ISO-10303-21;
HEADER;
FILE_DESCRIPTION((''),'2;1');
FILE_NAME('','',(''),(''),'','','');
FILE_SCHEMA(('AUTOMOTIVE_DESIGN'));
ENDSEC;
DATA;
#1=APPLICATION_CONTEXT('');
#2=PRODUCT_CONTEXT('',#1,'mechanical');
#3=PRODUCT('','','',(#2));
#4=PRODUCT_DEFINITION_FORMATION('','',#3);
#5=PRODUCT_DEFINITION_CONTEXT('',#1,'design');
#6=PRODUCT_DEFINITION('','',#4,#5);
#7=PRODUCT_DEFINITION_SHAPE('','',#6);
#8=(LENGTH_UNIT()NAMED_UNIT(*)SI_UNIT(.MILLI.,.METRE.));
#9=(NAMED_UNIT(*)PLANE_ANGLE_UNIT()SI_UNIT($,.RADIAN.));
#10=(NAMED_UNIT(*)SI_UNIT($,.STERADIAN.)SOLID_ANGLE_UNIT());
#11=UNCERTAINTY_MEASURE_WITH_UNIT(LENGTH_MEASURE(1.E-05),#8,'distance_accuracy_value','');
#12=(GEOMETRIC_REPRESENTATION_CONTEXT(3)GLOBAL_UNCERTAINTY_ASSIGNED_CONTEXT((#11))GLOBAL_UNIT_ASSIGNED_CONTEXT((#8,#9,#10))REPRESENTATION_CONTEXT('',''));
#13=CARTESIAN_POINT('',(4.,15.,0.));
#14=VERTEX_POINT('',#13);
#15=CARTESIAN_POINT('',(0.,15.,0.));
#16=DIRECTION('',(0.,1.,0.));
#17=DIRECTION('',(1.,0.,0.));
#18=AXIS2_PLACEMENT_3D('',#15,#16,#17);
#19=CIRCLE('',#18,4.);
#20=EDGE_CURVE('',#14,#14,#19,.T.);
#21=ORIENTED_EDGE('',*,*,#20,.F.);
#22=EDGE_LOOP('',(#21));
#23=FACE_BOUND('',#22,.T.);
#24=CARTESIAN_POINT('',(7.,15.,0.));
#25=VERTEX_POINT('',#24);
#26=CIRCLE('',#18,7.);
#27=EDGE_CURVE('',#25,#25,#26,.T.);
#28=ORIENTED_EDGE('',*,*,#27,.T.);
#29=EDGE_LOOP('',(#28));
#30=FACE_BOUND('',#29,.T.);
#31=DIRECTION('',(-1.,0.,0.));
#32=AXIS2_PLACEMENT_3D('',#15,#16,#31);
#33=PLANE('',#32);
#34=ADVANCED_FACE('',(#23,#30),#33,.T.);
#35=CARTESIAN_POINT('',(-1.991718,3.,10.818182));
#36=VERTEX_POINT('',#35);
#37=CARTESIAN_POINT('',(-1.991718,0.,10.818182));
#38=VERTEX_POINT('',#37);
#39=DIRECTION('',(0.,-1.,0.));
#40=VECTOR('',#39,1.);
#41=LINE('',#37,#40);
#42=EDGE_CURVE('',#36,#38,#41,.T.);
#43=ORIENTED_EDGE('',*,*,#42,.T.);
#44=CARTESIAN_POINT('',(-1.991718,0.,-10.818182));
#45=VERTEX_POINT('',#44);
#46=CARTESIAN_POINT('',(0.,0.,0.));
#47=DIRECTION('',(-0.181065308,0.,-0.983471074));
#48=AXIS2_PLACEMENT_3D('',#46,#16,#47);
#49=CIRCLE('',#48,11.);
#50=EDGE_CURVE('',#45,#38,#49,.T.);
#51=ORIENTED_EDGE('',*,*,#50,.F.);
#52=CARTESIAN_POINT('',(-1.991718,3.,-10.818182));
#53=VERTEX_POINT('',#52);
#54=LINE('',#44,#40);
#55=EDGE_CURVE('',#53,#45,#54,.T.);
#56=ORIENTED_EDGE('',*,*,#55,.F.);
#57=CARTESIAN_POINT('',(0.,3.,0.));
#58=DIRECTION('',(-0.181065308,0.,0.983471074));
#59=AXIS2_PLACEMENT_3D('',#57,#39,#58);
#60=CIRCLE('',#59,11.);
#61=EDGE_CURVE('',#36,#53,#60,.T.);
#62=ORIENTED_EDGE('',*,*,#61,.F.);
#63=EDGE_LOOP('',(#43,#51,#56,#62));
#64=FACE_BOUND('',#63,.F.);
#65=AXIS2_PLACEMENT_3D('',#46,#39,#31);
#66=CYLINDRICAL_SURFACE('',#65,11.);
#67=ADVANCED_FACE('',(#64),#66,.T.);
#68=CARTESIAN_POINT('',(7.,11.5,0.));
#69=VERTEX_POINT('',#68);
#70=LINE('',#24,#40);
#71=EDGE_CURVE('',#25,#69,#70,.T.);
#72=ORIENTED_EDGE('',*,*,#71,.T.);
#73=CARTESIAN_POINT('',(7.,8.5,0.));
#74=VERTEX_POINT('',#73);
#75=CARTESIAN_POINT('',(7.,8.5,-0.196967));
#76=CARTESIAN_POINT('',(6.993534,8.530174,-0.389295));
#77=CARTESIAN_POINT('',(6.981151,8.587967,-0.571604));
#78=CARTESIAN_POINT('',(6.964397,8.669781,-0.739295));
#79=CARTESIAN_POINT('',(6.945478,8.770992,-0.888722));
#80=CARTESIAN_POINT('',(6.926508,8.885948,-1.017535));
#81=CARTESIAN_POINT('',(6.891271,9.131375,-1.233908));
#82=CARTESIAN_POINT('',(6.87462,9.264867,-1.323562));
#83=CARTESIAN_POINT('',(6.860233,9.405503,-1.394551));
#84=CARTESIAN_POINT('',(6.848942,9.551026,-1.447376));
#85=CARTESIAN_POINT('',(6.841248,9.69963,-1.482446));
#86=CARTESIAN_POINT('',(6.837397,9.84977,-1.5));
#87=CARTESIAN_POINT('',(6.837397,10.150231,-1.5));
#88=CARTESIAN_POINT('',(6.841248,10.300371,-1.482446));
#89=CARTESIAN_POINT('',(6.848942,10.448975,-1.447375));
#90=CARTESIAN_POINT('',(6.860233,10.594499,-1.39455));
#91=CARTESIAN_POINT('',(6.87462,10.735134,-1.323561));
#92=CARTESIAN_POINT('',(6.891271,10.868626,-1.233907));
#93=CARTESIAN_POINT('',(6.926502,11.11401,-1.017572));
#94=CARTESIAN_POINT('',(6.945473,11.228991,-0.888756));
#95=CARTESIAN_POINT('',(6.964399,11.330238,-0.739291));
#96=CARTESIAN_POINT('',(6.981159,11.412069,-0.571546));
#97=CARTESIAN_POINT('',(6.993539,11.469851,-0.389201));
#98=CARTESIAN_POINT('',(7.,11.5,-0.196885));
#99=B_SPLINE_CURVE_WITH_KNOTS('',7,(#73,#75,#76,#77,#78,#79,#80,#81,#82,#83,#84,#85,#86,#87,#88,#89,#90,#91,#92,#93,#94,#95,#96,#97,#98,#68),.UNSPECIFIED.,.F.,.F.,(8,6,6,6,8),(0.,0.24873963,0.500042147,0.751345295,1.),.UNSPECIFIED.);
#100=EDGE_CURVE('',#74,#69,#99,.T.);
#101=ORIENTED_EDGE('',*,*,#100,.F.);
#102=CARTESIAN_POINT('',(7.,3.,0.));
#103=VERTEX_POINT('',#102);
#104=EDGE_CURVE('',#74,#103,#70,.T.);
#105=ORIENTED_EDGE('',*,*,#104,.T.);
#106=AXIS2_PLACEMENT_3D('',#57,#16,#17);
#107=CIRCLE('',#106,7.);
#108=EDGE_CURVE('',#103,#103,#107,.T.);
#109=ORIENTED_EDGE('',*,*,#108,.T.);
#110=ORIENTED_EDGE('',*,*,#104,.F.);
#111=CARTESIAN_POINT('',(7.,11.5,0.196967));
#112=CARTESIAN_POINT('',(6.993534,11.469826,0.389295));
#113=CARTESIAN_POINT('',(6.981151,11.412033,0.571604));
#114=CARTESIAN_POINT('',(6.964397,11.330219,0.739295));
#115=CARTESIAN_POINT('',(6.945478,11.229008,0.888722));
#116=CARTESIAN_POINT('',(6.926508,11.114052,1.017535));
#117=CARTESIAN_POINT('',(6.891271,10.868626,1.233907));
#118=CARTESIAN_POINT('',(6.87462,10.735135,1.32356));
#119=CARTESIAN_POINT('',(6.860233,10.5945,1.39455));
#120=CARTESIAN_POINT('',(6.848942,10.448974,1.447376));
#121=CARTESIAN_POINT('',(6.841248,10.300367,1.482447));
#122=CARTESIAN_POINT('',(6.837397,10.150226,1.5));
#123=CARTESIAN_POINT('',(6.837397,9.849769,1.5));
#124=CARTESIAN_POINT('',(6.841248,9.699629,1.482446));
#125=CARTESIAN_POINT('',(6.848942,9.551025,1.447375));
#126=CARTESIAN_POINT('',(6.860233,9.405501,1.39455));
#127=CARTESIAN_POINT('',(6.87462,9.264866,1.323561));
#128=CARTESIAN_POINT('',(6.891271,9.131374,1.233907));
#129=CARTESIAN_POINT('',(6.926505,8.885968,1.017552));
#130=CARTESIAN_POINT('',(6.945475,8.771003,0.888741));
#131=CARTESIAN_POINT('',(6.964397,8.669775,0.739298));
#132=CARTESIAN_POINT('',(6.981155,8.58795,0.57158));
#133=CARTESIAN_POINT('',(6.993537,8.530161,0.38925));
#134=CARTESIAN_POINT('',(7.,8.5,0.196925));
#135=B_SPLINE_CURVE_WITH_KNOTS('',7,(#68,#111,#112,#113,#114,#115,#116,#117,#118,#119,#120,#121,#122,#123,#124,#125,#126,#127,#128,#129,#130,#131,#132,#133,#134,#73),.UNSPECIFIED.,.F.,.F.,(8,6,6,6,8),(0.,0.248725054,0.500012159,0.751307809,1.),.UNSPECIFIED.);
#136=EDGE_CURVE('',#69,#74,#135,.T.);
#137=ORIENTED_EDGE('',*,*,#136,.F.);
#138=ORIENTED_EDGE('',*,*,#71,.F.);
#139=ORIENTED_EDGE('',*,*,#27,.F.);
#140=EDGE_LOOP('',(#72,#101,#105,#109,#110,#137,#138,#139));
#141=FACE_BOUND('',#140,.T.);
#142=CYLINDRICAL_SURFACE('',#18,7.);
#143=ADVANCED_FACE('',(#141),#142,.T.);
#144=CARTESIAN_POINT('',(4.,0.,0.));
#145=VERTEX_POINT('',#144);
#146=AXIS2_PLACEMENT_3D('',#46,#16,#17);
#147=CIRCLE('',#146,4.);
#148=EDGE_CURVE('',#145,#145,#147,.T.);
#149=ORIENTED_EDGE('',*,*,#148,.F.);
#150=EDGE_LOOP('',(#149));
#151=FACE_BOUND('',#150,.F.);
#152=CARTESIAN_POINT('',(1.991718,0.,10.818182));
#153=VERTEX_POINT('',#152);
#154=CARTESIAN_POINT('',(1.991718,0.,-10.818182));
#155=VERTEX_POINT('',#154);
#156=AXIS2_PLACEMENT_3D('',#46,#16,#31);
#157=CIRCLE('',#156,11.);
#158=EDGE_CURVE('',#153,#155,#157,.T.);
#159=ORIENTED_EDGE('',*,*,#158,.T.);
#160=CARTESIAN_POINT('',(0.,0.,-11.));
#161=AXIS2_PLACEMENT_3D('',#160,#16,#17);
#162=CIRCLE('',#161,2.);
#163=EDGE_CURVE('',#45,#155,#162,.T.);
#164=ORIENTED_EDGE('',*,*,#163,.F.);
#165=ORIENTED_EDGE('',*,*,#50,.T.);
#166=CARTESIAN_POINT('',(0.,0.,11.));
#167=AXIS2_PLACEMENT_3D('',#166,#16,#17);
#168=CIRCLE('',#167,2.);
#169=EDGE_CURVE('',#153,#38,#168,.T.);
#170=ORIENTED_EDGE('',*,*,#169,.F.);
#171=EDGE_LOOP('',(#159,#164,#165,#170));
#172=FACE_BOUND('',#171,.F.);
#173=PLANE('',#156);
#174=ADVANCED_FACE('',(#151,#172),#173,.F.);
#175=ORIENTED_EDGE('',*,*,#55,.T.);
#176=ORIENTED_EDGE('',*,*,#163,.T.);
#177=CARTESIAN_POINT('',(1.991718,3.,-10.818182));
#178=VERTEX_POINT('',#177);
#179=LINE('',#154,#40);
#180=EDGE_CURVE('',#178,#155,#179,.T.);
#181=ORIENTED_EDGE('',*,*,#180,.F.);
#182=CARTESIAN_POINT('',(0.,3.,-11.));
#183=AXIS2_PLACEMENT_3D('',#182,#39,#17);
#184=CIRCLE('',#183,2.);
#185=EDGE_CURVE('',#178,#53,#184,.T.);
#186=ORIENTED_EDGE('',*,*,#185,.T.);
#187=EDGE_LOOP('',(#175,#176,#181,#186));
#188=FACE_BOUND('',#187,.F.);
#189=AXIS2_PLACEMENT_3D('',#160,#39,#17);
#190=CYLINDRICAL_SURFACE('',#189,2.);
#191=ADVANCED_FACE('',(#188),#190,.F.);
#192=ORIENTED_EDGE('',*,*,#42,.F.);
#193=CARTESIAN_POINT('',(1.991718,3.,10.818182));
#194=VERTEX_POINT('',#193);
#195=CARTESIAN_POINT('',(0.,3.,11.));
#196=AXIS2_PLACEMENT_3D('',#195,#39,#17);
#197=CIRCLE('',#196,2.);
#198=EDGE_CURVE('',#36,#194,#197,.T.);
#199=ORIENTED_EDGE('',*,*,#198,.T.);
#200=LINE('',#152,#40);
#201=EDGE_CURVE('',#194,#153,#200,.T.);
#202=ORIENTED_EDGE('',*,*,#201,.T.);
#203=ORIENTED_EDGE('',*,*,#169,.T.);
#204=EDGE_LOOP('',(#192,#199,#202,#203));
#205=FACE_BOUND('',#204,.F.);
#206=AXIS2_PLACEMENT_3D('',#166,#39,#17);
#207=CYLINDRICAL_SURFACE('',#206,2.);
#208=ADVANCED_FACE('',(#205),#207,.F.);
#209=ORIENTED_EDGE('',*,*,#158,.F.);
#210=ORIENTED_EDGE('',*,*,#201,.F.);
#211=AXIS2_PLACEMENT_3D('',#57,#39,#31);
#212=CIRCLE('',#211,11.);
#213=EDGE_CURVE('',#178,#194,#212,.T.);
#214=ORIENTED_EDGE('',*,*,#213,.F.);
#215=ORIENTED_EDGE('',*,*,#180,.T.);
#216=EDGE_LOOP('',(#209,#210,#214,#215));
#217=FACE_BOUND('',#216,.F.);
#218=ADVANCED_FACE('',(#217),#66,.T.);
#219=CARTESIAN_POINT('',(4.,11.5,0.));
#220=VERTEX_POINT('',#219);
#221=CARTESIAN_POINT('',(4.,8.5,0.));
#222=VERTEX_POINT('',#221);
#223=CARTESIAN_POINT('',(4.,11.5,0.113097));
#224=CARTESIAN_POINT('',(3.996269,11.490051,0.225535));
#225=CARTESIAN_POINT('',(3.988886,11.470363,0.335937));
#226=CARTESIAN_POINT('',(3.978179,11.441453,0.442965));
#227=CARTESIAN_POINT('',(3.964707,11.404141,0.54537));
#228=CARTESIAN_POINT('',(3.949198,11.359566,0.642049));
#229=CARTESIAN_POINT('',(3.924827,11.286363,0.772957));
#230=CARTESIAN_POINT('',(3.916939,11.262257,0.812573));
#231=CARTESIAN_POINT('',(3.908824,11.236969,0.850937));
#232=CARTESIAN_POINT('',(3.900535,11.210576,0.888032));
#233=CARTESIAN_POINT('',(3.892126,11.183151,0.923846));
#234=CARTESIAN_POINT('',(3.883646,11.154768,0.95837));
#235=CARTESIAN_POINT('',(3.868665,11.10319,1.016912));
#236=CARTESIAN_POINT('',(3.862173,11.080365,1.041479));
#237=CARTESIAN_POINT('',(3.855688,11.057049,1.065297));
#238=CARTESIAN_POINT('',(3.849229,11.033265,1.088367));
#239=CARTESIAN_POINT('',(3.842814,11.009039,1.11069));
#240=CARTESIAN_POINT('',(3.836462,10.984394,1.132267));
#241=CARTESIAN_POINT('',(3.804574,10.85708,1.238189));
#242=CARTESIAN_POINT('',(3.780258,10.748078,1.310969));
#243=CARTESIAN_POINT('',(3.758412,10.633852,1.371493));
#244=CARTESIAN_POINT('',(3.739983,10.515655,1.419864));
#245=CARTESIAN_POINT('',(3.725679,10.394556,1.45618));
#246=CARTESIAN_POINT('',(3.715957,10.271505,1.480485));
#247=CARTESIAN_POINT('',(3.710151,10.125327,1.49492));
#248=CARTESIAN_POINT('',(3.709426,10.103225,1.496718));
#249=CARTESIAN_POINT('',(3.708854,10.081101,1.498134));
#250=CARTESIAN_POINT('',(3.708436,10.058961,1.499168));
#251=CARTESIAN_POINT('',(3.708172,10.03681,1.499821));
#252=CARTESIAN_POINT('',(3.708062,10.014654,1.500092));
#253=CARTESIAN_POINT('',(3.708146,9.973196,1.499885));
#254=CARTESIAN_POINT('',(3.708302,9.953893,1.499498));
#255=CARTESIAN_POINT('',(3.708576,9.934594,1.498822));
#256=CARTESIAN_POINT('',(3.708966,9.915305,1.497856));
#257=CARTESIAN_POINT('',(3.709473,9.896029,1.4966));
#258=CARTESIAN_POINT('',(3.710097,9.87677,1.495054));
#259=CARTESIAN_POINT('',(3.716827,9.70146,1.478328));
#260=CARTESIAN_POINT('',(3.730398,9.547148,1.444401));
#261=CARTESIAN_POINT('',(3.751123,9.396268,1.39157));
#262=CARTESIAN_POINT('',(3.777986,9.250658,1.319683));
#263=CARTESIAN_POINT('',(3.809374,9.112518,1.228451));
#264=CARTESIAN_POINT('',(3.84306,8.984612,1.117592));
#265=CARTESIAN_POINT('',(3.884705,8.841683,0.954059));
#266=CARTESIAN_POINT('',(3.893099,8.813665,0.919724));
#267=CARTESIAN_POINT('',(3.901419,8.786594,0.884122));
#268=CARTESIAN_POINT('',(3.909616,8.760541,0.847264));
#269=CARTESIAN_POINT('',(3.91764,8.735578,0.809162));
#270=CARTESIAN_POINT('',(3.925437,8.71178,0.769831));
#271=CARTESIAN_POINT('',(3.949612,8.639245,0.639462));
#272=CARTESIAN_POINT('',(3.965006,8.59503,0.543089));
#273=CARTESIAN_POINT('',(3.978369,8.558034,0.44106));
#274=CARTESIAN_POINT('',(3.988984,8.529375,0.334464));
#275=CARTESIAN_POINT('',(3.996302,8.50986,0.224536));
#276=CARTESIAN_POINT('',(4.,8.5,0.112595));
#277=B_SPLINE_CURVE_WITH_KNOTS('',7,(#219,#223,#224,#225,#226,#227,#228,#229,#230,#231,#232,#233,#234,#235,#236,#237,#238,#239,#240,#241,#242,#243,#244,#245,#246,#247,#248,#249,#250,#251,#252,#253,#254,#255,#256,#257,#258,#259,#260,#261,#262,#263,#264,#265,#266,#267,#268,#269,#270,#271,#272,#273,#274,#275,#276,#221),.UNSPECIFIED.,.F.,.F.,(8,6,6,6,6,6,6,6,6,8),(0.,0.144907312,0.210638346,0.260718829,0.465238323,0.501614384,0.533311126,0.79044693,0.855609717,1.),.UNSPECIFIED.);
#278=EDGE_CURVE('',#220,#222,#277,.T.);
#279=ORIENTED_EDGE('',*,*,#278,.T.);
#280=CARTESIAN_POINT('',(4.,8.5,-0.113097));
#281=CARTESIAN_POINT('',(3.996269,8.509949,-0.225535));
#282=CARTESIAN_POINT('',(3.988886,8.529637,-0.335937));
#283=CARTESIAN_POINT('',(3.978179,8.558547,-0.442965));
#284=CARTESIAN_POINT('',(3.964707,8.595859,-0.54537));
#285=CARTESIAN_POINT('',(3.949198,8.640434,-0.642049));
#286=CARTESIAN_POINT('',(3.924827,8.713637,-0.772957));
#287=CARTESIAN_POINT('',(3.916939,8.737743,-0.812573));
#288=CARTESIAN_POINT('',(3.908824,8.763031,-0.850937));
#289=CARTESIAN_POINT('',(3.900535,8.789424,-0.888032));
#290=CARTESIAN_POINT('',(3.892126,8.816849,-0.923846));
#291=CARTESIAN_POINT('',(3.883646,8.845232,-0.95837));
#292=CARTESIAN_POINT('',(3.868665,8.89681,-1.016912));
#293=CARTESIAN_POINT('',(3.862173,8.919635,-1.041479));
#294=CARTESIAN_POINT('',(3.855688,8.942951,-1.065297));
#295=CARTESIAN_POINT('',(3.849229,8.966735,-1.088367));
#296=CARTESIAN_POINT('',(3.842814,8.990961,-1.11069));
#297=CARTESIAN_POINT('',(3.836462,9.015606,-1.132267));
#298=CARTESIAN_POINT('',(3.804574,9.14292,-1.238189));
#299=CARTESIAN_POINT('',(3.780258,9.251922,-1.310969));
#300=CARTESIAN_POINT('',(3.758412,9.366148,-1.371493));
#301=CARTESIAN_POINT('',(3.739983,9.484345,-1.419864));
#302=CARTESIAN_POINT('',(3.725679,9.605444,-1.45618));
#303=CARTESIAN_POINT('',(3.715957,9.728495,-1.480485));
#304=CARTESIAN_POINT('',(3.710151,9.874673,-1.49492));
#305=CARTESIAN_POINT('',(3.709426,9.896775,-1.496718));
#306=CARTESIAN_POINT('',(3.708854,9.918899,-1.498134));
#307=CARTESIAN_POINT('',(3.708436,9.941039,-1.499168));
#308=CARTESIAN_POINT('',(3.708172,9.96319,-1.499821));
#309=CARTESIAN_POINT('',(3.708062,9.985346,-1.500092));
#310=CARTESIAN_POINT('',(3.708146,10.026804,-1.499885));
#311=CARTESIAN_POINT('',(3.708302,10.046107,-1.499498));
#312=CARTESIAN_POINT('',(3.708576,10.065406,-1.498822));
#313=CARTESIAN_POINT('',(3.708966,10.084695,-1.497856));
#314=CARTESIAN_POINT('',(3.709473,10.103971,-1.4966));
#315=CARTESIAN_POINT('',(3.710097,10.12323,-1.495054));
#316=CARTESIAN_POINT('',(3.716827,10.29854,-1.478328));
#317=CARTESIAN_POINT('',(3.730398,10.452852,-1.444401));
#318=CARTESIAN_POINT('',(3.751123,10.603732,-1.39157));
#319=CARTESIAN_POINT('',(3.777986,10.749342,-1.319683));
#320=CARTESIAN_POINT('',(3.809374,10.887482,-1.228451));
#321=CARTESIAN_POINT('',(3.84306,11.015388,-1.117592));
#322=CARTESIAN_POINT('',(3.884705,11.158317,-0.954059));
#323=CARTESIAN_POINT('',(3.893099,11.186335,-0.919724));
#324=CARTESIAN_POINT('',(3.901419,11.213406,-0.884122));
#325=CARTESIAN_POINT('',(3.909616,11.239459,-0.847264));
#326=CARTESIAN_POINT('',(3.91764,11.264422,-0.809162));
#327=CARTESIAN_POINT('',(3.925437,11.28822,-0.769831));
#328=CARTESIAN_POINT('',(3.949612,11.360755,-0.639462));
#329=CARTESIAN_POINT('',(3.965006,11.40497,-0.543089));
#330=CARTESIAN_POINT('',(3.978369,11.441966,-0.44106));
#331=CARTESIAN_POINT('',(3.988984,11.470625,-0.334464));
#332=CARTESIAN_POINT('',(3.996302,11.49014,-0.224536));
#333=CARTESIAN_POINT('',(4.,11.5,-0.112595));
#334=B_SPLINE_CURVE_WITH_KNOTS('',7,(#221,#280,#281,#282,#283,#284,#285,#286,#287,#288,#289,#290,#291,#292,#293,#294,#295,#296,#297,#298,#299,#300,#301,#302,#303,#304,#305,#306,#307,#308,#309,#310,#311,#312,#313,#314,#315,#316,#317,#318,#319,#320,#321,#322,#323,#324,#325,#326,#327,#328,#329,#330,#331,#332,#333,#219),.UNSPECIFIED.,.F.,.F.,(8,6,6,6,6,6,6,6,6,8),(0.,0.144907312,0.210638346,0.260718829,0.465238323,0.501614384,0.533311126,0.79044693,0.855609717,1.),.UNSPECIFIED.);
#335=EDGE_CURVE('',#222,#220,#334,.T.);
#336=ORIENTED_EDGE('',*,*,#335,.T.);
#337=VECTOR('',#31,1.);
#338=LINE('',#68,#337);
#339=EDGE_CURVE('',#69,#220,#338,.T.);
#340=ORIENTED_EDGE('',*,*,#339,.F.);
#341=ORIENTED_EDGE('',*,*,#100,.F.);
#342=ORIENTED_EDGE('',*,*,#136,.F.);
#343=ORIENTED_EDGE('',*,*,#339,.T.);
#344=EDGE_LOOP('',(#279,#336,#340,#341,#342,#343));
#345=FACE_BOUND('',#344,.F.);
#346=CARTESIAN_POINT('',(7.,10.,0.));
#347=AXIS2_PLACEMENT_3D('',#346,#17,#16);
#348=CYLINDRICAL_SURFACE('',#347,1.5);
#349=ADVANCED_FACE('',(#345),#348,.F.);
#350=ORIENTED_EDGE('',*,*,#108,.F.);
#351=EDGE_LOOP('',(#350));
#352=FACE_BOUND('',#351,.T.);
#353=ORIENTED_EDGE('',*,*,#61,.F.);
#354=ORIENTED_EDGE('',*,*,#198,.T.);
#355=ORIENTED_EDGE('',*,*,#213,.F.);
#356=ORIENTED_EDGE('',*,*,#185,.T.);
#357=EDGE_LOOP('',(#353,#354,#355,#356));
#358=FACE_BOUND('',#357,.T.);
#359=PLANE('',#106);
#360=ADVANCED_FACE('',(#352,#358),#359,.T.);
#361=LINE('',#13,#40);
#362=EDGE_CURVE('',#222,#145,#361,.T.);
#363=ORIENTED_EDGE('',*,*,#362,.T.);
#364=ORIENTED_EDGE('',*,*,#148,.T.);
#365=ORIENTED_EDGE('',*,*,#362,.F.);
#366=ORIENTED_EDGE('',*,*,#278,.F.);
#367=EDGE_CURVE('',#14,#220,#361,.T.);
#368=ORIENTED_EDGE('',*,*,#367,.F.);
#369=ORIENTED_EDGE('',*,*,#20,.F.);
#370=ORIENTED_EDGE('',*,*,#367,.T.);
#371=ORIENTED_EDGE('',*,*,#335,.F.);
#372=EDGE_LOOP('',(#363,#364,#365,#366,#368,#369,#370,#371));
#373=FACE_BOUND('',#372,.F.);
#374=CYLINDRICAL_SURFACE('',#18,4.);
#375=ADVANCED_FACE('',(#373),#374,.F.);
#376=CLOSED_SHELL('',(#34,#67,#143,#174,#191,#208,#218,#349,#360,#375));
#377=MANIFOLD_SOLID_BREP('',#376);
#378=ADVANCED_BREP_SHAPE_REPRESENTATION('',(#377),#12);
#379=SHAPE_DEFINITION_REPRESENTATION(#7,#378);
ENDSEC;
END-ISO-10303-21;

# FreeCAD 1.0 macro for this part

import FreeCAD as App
import Part
import Sketcher

V = App.Vector
Q = App.Units.Quantity

doc = App.newDocument("Part")
body = doc.addObject("PartDesign::Body", "Body")

# Sketch on XZ plane
sketch1 = doc.addObject("Sketcher::SketchObject", "Sketch")
body.addObject(sketch1)
sketch1.AttachmentSupport = (doc.XZ_Plane, [""])
sketch1.MapMode = "FlatFace"
sketch1.addGeometry(Part.Circle(V(0, 0, 0), V(0, 0, 1), 11), False)
sketch1.addConstraint(Sketcher.Constraint("Coincident", 0, 3, -1, 1))
sketch1.addConstraint(Sketcher.Constraint("Diameter", 0, Q("22 mm")))
pad1 = doc.addObject("PartDesign::Pad", "Pad")
body.addObject(pad1)
pad1.Profile = sketch1
pad1.Length = 15
pad1.Reversed = True

# Sketch on XZ plane
sketch2 = doc.addObject("Sketcher::SketchObject", "Sketch001")
body.addObject(sketch2)
sketch2.AttachmentSupport = (doc.XZ_Plane, [""])
sketch2.MapMode = "FlatFace"
sketch2.AttachmentOffset = App.Placement(V(0, 0, -15), App.Rotation())
sketch2.addGeometry(Part.Circle(V(0, 0, 0), V(0, 0, 1), 11), False)
sketch2.addGeometry(Part.Circle(V(0, 0, 0), V(0, 0, 1), 7), False)
sketch2.addConstraint(Sketcher.Constraint("Coincident", 0, 3, -1, 1))
sketch2.addConstraint(Sketcher.Constraint("Coincident", 1, 3, -1, 1))
sketch2.addConstraint(Sketcher.Constraint("Diameter", 1, Q("14 mm")))
sketch2.addConstraint(Sketcher.Constraint("Diameter", 0, Q("22 mm")))
pocket1 = doc.addObject("PartDesign::Pocket", "Pocket")
body.addObject(pocket1)
pocket1.Profile = sketch2
pocket1.Length = 12
pocket1.Reversed = True

# Sketch on XZ plane
sketch3 = doc.addObject("Sketcher::SketchObject", "Sketch002")
body.addObject(sketch3)
sketch3.AttachmentSupport = (doc.XZ_Plane, [""])
sketch3.MapMode = "FlatFace"
sketch3.AttachmentOffset = App.Placement(V(0, 0, -15), App.Rotation())
sketch3.addGeometry(Part.Circle(V(0, 0, 0), V(0, 0, 1), 4), False)
sketch3.addConstraint(Sketcher.Constraint("Coincident", 0, 3, -1, 1))
sketch3.addConstraint(Sketcher.Constraint("Diameter", 0, Q("8 mm")))
pocket2 = doc.addObject("PartDesign::Pocket", "Pocket001")
body.addObject(pocket2)
pocket2.Profile = sketch3
pocket2.Type = "ThroughAll"
pocket2.Reversed = True

# Sketch on XZ plane
sketch4 = doc.addObject("Sketcher::SketchObject", "Sketch003")
body.addObject(sketch4)
sketch4.AttachmentSupport = (doc.XZ_Plane, [""])
sketch4.MapMode = "FlatFace"
sketch4.addGeometry(Part.Circle(V(0, 11, 0), V(0, 0, 1), 2), False)
sketch4.addGeometry(Part.Circle(V(0, -11, 0), V(0, 0, 1), 2), False)
sketch4.addConstraint(Sketcher.Constraint("Equal", 0, 1))
sketch4.addConstraint(Sketcher.Constraint("Symmetric", 0, 3, 1, 3, -1, 1))
sketch4.addConstraint(Sketcher.Constraint("PointOnObject", 0, 3, -2))
sketch4.addConstraint(Sketcher.Constraint("Diameter", 0, Q("4 mm")))
sketch4.addConstraint(Sketcher.Constraint("DistanceY", -1, 1, 0, 3, Q("11 mm")))
pocket3 = doc.addObject("PartDesign::Pocket", "Pocket002")
body.addObject(pocket3)
pocket3.Profile = sketch4
pocket3.Type = "ThroughAll"

# Sketch on YZ plane
sketch5 = doc.addObject("Sketcher::SketchObject", "Sketch004")
body.addObject(sketch5)
sketch5.AttachmentSupport = (doc.YZ_Plane, [""])
sketch5.MapMode = "FlatFace"
sketch5.AttachmentOffset = App.Placement(V(0, 0, 7), App.Rotation())
sketch5.addGeometry(Part.Circle(V(10, 0, 0), V(0, 0, 1), 1.5), False)
sketch5.addConstraint(Sketcher.Constraint("PointOnObject", 0, 3, -1))
sketch5.addConstraint(Sketcher.Constraint("Diameter", 0, Q("3 mm")))
sketch5.addConstraint(Sketcher.Constraint("DistanceX", -1, 1, 0, 3, Q("10 mm")))
pocket4 = doc.addObject("PartDesign::Pocket", "Pocket003")
body.addObject(pocket4)
pocket4.Profile = sketch5
pocket4.Length = 5

doc.recompute()
